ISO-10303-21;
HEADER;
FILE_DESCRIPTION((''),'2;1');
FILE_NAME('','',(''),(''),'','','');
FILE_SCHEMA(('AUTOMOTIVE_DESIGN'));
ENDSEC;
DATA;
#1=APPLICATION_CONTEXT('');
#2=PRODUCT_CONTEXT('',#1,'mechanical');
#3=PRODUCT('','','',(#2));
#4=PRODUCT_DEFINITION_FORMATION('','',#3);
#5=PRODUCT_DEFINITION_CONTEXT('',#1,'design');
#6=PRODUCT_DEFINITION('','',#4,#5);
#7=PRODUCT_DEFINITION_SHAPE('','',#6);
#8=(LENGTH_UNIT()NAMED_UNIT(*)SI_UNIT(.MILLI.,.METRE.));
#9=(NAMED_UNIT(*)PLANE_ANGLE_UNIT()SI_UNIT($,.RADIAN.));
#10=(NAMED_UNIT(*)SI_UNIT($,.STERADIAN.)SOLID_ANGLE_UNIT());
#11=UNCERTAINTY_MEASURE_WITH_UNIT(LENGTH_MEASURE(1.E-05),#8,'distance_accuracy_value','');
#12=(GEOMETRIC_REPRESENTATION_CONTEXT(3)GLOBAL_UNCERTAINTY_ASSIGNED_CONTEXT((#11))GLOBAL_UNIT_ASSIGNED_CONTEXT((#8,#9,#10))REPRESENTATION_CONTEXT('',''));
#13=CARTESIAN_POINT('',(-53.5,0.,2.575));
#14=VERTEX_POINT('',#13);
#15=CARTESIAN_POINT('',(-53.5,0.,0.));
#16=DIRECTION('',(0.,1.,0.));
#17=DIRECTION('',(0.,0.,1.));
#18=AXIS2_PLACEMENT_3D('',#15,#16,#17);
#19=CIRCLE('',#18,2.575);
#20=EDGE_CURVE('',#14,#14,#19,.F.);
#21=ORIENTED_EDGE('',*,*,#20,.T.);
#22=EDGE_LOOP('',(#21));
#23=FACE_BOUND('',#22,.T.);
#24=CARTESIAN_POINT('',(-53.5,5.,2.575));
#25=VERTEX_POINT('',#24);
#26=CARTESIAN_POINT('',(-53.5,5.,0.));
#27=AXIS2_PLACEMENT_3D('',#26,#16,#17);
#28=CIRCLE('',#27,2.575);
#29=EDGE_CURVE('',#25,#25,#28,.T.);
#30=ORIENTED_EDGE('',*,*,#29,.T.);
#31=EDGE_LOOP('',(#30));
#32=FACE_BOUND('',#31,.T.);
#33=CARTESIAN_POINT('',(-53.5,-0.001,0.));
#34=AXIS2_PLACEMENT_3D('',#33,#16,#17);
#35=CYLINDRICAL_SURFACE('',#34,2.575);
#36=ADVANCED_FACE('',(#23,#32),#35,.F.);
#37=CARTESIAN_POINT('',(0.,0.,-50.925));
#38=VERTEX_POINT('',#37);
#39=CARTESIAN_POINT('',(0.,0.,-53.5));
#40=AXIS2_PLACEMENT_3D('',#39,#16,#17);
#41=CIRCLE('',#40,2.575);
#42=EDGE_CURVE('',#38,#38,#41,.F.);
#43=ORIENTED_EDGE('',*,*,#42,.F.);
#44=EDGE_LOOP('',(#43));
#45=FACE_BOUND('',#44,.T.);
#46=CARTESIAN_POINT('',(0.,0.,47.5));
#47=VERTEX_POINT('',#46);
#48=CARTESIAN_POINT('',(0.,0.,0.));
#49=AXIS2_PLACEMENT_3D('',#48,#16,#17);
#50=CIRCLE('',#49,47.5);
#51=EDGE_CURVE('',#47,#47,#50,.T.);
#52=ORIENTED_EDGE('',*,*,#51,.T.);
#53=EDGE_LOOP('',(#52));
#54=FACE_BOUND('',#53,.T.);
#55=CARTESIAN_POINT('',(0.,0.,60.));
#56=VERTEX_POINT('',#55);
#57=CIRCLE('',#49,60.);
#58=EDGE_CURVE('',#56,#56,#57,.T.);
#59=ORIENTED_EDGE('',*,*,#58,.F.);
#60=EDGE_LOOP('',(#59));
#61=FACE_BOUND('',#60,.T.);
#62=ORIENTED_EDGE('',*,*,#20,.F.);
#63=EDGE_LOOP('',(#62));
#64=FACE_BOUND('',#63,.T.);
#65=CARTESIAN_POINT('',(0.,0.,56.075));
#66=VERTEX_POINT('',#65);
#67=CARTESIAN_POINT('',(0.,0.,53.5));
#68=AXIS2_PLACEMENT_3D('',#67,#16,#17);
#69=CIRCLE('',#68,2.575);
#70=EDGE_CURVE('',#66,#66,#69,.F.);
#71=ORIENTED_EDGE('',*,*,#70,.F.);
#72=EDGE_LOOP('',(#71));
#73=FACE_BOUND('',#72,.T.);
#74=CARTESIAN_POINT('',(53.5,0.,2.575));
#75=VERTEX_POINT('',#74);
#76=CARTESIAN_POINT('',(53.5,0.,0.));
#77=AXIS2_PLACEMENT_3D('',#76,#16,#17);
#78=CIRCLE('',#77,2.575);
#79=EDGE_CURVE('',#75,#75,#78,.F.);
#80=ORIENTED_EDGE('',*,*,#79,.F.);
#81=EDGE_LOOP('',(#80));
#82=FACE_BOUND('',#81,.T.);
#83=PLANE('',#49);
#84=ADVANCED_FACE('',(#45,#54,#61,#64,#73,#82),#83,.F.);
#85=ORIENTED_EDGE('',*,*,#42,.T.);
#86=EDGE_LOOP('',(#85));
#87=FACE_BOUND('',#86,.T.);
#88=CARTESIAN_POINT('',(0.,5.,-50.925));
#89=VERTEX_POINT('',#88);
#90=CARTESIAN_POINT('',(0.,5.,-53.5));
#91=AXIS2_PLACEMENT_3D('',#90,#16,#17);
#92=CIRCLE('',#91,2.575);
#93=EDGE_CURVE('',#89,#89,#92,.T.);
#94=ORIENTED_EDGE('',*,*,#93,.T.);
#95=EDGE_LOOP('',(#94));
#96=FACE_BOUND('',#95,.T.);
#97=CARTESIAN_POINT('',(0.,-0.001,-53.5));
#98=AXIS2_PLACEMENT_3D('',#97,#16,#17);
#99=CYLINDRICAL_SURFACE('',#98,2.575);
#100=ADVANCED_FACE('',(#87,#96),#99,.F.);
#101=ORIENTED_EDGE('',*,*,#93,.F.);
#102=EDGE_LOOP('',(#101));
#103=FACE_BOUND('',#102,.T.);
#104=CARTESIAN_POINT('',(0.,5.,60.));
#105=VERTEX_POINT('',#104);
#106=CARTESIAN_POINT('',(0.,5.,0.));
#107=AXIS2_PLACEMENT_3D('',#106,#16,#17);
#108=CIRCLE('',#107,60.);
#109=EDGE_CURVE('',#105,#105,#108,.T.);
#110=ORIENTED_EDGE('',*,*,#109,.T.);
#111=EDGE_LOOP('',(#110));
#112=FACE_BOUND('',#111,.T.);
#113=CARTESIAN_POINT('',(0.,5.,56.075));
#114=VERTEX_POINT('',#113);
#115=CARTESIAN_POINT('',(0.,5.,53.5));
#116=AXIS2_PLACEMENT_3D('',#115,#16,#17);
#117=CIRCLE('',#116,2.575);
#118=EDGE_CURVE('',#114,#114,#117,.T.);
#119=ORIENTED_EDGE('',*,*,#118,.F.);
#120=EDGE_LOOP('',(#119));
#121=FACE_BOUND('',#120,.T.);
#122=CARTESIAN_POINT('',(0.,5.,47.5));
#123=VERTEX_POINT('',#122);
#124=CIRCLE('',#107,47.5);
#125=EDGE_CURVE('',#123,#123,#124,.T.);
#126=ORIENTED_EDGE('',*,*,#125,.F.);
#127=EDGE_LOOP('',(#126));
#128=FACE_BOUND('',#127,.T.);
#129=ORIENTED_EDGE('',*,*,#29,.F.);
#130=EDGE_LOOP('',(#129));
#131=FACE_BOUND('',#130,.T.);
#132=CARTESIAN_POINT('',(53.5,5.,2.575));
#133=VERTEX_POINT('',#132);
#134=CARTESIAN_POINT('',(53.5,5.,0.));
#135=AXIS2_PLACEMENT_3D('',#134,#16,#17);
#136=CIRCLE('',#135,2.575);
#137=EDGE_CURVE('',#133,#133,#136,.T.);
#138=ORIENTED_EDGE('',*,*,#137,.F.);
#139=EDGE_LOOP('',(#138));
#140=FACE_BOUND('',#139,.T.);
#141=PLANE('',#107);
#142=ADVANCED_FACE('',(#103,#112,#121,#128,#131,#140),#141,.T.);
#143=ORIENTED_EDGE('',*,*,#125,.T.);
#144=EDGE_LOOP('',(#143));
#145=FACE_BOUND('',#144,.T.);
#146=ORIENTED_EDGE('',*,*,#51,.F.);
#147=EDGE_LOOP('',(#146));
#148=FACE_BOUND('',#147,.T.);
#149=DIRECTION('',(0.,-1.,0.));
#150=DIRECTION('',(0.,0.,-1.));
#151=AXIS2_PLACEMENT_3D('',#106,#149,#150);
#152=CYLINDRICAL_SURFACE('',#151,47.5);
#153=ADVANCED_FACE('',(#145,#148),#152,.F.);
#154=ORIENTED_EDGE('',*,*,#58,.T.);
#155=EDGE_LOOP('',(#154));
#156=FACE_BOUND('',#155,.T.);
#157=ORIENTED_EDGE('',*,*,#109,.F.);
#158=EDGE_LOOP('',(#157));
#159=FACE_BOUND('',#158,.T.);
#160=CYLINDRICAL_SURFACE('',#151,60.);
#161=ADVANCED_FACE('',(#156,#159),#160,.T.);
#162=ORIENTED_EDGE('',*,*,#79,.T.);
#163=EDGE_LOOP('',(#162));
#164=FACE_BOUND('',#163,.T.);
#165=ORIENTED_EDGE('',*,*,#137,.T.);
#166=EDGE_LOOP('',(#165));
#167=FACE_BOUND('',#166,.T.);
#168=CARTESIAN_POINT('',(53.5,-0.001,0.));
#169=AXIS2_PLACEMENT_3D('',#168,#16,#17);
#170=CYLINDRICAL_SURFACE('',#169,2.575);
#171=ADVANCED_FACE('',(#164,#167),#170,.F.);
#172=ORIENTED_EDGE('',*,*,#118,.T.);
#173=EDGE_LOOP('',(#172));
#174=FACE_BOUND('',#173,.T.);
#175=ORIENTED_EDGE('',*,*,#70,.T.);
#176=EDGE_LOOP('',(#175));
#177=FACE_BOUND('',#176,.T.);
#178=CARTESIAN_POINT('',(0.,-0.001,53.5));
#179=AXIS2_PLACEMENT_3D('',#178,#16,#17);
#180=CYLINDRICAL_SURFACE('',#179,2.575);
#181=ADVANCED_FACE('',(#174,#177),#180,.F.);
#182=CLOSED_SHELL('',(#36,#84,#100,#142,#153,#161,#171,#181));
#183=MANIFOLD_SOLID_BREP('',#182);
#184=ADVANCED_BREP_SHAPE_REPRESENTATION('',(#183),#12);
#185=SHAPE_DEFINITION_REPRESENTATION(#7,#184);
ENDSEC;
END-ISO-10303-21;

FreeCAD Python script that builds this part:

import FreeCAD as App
import Part
import Sketcher
from FreeCAD import Vector
Q = App.Units.Quantity

doc = App.newDocument("Part")
body = doc.addObject("PartDesign::Body", "Body")

# Sketch on XZ plane
sketch1 = doc.addObject("Sketcher::SketchObject", "Sketch")
body.addObject(sketch1)
sketch1.AttachmentSupport = (doc.XZ_Plane, [""])
sketch1.MapMode = "FlatFace"
sketch1.addGeometry(Part.Circle(Vector(0, 0, 0), Vector(0, 0, 1), 60), False)
sketch1.addGeometry(Part.Circle(Vector(0, 0, 0), Vector(0, 0, 1), 48), False)
sketch1.addConstraint(Sketcher.Constraint("Coincident", 0, 3, -1, 1))
sketch1.addConstraint(Sketcher.Constraint("Coincident", 1, 3, -1, 1))
sketch1.addConstraint(Sketcher.Constraint("Diameter", 0, Q("120 mm")))
sketch1.addConstraint(Sketcher.Constraint("Diameter", 1, Q("95 mm")))
pad1 = doc.addObject("PartDesign::Pad", "Pad")
body.addObject(pad1)
pad1.Profile = sketch1
pad1.Length = 5
pad1.Reversed = True

# Sketch on XZ plane
sketch2 = doc.addObject("Sketcher::SketchObject", "Sketch001")
body.addObject(sketch2)
sketch2.AttachmentSupport = (doc.XZ_Plane, [""])
sketch2.MapMode = "FlatFace"
sketch2.AttachmentOffset = App.Placement(Vector(0, 0, -5), App.Rotation())
sketch2.addGeometry(Part.Circle(Vector(0, -53.5, 0), Vector(0, 0, 1), 2.6), False)
sketch2.addConstraint(Sketcher.Constraint("PointOnObject", 0, 3, -2))
sketch2.addConstraint(Sketcher.Constraint("Diameter", 0, Q("5.15 mm")))
sketch2.addConstraint(Sketcher.Constraint("DistanceY", 0, 3, -1, 1, Q("53.5 mm")))
pocket1 = doc.addObject("PartDesign::Pocket", "Pocket")
body.addObject(pocket1)
pocket1.Profile = sketch2
pocket1.Type = "UpToFirst"
pocket1.Reversed = True

# Sketch on XZ plane
sketch3 = doc.addObject("Sketcher::SketchObject", "Sketch002")
body.addObject(sketch3)
sketch3.AttachmentSupport = (doc.XZ_Plane, [""])
sketch3.MapMode = "FlatFace"
sketch3.AttachmentOffset = App.Placement(Vector(0, 0, -5), App.Rotation())
sketch3.addGeometry(Part.Circle(Vector(53.5, 0, 0), Vector(0, 0, 1), 2.6), False)
sketch3.addConstraint(Sketcher.Constraint("PointOnObject", 0, 3, -1))
sketch3.addConstraint(Sketcher.Constraint("Diameter", 0, Q("5.15 mm")))
sketch3.addConstraint(Sketcher.Constraint("DistanceX", -1, 1, 0, 3, Q("53.5 mm")))
pocket2 = doc.addObject("PartDesign::Pocket", "Pocket001")
body.addObject(pocket2)
pocket2.Profile = sketch3
pocket2.Type = "UpToFirst"
pocket2.Reversed = True

# Sketch on XZ plane
sketch4 = doc.addObject("Sketcher::SketchObject", "Sketch003")
body.addObject(sketch4)
sketch4.AttachmentSupport = (doc.XZ_Plane, [""])
sketch4.MapMode = "FlatFace"
sketch4.AttachmentOffset = App.Placement(Vector(0, 0, -5), App.Rotation())
sketch4.addGeometry(Part.Circle(Vector(0, 53.5, 0), Vector(0, 0, 1), 2.6), False)
sketch4.addConstraint(Sketcher.Constraint("PointOnObject", 0, 3, -2))
sketch4.addConstraint(Sketcher.Constraint("Diameter", 0, Q("5.15 mm")))
sketch4.addConstraint(Sketcher.Constraint("DistanceY", -1, 1, 0, 3, Q("53.5 mm")))
pocket3 = doc.addObject("PartDesign::Pocket", "Pocket002")
body.addObject(pocket3)
pocket3.Profile = sketch4
pocket3.Type = "UpToFirst"
pocket3.Reversed = True

# Sketch on XZ plane
sketch5 = doc.addObject("Sketcher::SketchObject", "Sketch004")
body.addObject(sketch5)
sketch5.AttachmentSupport = (doc.XZ_Plane, [""])
sketch5.MapMode = "FlatFace"
sketch5.AttachmentOffset = App.Placement(Vector(0, 0, -5), App.Rotation())
sketch5.addGeometry(Part.Circle(Vector(-53.5, 0, 0), Vector(0, 0, 1), 2.6), False)
sketch5.addConstraint(Sketcher.Constraint("PointOnObject", 0, 3, -1))
sketch5.addConstraint(Sketcher.Constraint("Diameter", 0, Q("5.15 mm")))
sketch5.addConstraint(Sketcher.Constraint("DistanceX", 0, 3, -1, 1, Q("53.5 mm")))
pocket4 = doc.addObject("PartDesign::Pocket", "Pocket003")
body.addObject(pocket4)
pocket4.Profile = sketch5
pocket4.Type = "UpToFirst"
pocket4.Reversed = True

doc.recompute()
